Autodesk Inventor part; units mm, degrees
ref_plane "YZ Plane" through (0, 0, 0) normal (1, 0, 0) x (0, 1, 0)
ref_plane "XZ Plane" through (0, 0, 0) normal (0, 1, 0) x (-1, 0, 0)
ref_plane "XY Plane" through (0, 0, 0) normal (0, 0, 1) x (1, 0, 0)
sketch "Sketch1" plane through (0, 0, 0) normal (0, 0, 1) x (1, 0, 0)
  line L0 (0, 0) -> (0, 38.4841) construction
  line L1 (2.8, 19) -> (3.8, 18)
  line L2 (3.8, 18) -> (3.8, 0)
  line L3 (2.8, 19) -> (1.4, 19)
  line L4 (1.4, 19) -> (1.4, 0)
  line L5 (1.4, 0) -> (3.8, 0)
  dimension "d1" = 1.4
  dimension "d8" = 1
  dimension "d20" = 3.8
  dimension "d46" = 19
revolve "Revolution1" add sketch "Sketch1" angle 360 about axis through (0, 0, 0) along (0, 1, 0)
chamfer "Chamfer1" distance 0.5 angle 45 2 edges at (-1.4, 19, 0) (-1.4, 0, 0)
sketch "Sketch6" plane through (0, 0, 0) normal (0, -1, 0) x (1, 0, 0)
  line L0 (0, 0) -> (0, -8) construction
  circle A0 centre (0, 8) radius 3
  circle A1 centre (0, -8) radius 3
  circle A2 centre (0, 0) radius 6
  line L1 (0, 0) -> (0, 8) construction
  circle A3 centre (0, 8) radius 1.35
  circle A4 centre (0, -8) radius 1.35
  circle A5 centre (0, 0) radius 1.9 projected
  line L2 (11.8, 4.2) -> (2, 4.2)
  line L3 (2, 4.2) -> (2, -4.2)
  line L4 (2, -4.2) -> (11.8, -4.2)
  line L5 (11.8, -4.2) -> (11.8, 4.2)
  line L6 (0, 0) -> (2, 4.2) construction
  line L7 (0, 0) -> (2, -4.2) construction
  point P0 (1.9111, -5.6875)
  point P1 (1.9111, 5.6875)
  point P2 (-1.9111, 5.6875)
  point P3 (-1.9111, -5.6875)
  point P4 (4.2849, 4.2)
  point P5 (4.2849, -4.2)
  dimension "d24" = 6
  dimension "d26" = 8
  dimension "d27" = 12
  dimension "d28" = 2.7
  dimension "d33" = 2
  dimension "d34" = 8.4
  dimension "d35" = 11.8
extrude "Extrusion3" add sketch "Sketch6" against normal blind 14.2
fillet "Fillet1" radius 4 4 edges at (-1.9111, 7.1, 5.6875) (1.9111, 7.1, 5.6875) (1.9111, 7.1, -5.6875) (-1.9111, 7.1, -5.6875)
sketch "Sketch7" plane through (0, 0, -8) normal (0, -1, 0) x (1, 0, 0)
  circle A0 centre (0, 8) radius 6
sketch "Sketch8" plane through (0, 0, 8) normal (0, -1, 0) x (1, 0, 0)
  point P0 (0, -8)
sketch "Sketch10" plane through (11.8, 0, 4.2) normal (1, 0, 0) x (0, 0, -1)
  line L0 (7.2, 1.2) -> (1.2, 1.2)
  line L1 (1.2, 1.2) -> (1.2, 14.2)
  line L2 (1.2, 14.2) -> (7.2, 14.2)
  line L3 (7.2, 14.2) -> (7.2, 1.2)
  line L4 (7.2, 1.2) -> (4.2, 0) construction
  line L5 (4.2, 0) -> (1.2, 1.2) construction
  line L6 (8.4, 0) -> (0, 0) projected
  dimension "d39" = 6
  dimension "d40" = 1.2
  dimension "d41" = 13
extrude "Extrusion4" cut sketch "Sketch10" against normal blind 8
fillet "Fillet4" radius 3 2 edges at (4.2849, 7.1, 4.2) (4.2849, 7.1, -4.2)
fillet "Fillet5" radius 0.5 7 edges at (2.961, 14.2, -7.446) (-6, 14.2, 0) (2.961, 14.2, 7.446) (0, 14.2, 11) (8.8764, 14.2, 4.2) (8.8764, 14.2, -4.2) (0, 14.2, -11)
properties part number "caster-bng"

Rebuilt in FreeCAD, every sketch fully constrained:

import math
import FreeCAD as App
import Part
import Sketcher


def edges_at(feature, points):
    """Names of the edges that pass closest to the given points."""
    edges = feature.Shape.Edges
    near = lambda p: min(range(len(edges)), key=lambda i: edges[i].distToShape(Part.Vertex(*p))[0])
    return sorted({f"Edge{near(p) + 1}" for p in points})

doc = App.newDocument("Part")
params = doc.addObject("Spreadsheet::Sheet", "Params")
for row, (alias, value) in enumerate([
    ("sketch1_height", "19 mm"),
    ("sketch1_width", "1.4 mm"),
    ("revolution_angle", "360 deg"),
    ("chamfer_size", "0.5 mm"),
    ("sketch2_radius", "3 mm"),
    ("sketch2_radius2", "6 mm"),
    ("sketch2_diameter", "2.7 mm"),
    ("sketch2_height", "8.4 mm"),
    ("sketch2_diameter2", "3.8 mm"),
    ("pad1_length", "14.2 mm"),
    ("fillet_radius", "4 mm"),
    ("sketch3_width", "13 mm"),
    ("sketch3_height", "6 mm"),
    ("pocket1_length", "8 mm"),
    ("fillet2_radius", "3 mm"),
    ("fillet3_radius", "0.5 mm"),
], start=1):
    params.set(f"A{row}", alias)
    params.set(f"B{row}", "=" + value)
    params.setAlias(f"B{row}", alias)

body = doc.addObject("PartDesign::Body", "Body")

sketch1 = body.newObject("Sketcher::SketchObject", "Sketch")
sketch1.AttachmentSupport = (doc.getObject("XY_Plane"), [""])
sketch1.MapMode = "FlatFace"
sketch1.addGeometry([
    Part.LineSegment(App.Vector(3.8, 18, 0), App.Vector(2.8, 19, 0)),
    Part.LineSegment(App.Vector(2.8, 19, 0), App.Vector(1.4, 19, 0)),
    Part.LineSegment(App.Vector(1.4, 19, 0), App.Vector(1.4, 0, 0)),
    Part.LineSegment(App.Vector(1.4, 0, 0), App.Vector(3.8, 0, 0)),
    Part.LineSegment(App.Vector(3.8, 0, 0), App.Vector(3.8, 18, 0)),
], False)
sketch1.addConstraint([
    Sketcher.Constraint("Coincident", 0, 2, 1, 1),
    Sketcher.Constraint("Coincident", 1, 2, 2, 1),
    Sketcher.Constraint("Coincident", 2, 2, 3, 1),
    Sketcher.Constraint("Coincident", 3, 2, 4, 1),
    Sketcher.Constraint("Coincident", 4, 2, 0, 1),
    Sketcher.Constraint("Horizontal", 1),
    Sketcher.Constraint("Vertical", 2),
    Sketcher.Constraint("Horizontal", 3),
    Sketcher.Constraint("Vertical", 4),
    Sketcher.Constraint("PointOnObject", 2, 2, -1),
    Sketcher.Constraint("DistanceY", 2, 2, 2, 1, 19.0),
    Sketcher.Constraint("DistanceX", 1, 2, 1, 1, 1.4),
    Sketcher.Constraint("DistanceX", 0, 2, 3, 2, 1.0),
    Sketcher.Constraint("DistanceY", 4, 2, 0, 2, 1.0),
    Sketcher.Constraint("DistanceX", -1, 1, 1, 2, 1.4),
])
sketch1.setExpression("Constraints[10]", "Params.sketch1_height")
sketch1.setExpression("Constraints[11]", "Params.sketch1_width")
revolution = body.newObject("PartDesign::Revolution", "Revolution")
revolution.Profile = sketch1
revolution.ReferenceAxis = (sketch1, ["V_Axis"])
revolution.setExpression("Angle", "Params.revolution_angle")
doc.recompute()

chamfer = body.newObject("PartDesign::Chamfer", "Chamfer")
chamfer.Base = (revolution, edges_at(revolution, [(-1.4, 19, 0), (-1.4, 0, 0)]))
chamfer.setExpression("Size", "Params.chamfer_size")

sketch2 = body.newObject("Sketcher::SketchObject", "Sketch001")
sketch2.AttachmentSupport = (doc.getObject("XZ_Plane"), [""])
sketch2.MapMode = "FlatFace"
sketch2.addGeometry([
    Part.ArcOfCircle(Part.Circle(App.Vector(0, 8, 0), App.Vector(0, 0, 1), 3), math.radians(-50.428781), math.radians(230.428781)),
    Part.ArcOfCircle(Part.Circle(App.Vector(0, 0, 0), App.Vector(0, 0, 1), 6), math.radians(108.57335), math.radians(251.42665)),
    Part.ArcOfCircle(Part.Circle(App.Vector(0, -8, 0), App.Vector(0, 0, 1), 3), math.radians(129.571219), math.radians(410.428781)),
    Part.ArcOfCircle(Part.Circle(App.Vector(0, 0, 0), App.Vector(0, 0, 1), 6), math.radians(-71.42665), math.radians(-44.427004)),
    Part.LineSegment(App.Vector(4.284857, -4.2, 0), App.Vector(11.8, -4.2, 0)),
    Part.LineSegment(App.Vector(11.8, -4.2, 0), App.Vector(11.8, 4.2, 0)),
    Part.LineSegment(App.Vector(11.8, 4.2, 0), App.Vector(4.284857, 4.2, 0)),
    Part.ArcOfCircle(Part.Circle(App.Vector(0, 0, 0), App.Vector(0, 0, 1), 6), math.radians(44.427004), math.radians(71.42665)),
    Part.Circle(App.Vector(0, 8, 0), App.Vector(0, 0, 1), 1.35),
    Part.Circle(App.Vector(0, 0, 0), App.Vector(0, 0, 1), 1.9),
    Part.Circle(App.Vector(0, -8, 0), App.Vector(0, 0, 1), 1.35),
], False)
sketch2.addConstraint([
    Sketcher.Constraint("Coincident", 0, 2, 1, 1),
    Sketcher.Constraint("Coincident", 1, 2, 2, 1),
    Sketcher.Constraint("Coincident", 2, 2, 3, 1),
    Sketcher.Constraint("Coincident", 3, 2, 4, 1),
    Sketcher.Constraint("Coincident", 4, 2, 5, 1),
    Sketcher.Constraint("Coincident", 5, 2, 6, 1),
    Sketcher.Constraint("Coincident", 6, 2, 7, 1),
    Sketcher.Constraint("Coincident", 7, 2, 0, 1),
    Sketcher.Constraint("Horizontal", 4),
    Sketcher.Constraint("Vertical", 5),
    Sketcher.Constraint("Horizontal", 6),
    Sketcher.Constraint("Coincident", 1, 3, -1, 1),
    Sketcher.Constraint("Coincident", 3, 3, -1, 1),
    Sketcher.Constraint("Coincident", 7, 3, -1, 1),
    Sketcher.Constraint("Coincident", 9, 3, -1, 1),
    Sketcher.Constraint("Coincident", 8, 3, 0, 3),
    Sketcher.Constraint("Coincident", 10, 3, 2, 3),
    Sketcher.Constraint("Equal", 0, 2),
    Sketcher.Constraint("Equal", 1, 3),
    Sketcher.Constraint("Equal", 3, 7),
    Sketcher.Constraint("Equal", 8, 10),
    Sketcher.Constraint("Symmetric", 0, 3, 2, 3, -1, 1),
    Sketcher.Constraint("PointOnObject", 0, 3, -2),
    Sketcher.Constraint("Vertical", 3, 2, 6, 2),
    Sketcher.Constraint("Radius", 0, 3.0),
    Sketcher.Constraint("Radius", 1, 6.0),
    Sketcher.Constraint("Diameter", 8, 2.7),
    Sketcher.Constraint("DistanceY", 5, 1, 5, 2, 8.4),
    Sketcher.Constraint("DistanceY", -1, 1, 0, 3, 8.0),
    Sketcher.Constraint("Diameter", 9, 3.8),
    Sketcher.Constraint("DistanceX", -1, 1, 4, 2, 11.8),
])
sketch2.setExpression("Constraints[24]", "Params.sketch2_radius")
sketch2.setExpression("Constraints[25]", "Params.sketch2_radius2")
sketch2.setExpression("Constraints[26]", "Params.sketch2_diameter")
sketch2.setExpression("Constraints[27]", "Params.sketch2_height")
sketch2.setExpression("Constraints[29]", "Params.sketch2_diameter2")
pad1 = body.newObject("PartDesign::Pad", "Pad")
pad1.Profile = sketch2
pad1.setExpression("Length", "Params.pad1_length")
pad1.Reversed = True
doc.recompute()

fillet = body.newObject("PartDesign::Fillet", "Fillet")
fillet.Base = (pad1, edges_at(pad1, [
    (-1.911, 7.1, 5.688),
    (1.911, 7.1, 5.688),
    (1.911, 7.1, -5.688),
    (-1.911, 7.1, -5.688),
]))
fillet.setExpression("Radius", "Params.fillet_radius")

sketch3 = body.newObject("Sketcher::SketchObject", "Sketch002")
sketch3.AttachmentSupport = (doc.getObject("YZ_Plane"), [""])
sketch3.MapMode = "FlatFace"
sketch3.AttachmentOffset = App.Placement(App.Vector(0, 0, 11.8), App.Rotation())
sketch3.addGeometry([
    Part.LineSegment(App.Vector(1.2, 3, 0), App.Vector(1.2, -3, 0)),
    Part.LineSegment(App.Vector(1.2, -3, 0), App.Vector(14.2, -3, 0)),
    Part.LineSegment(App.Vector(14.2, -3, 0), App.Vector(14.2, 3, 0)),
    Part.LineSegment(App.Vector(14.2, 3, 0), App.Vector(1.2, 3, 0)),
], False)
sketch3.addConstraint([
    Sketcher.Constraint("Coincident", 0, 2, 1, 1),
    Sketcher.Constraint("Coincident", 1, 2, 2, 1),
    Sketcher.Constraint("Coincident", 2, 2, 3, 1),
    Sketcher.Constraint("Coincident", 3, 2, 0, 1),
    Sketcher.Constraint("Vertical", 0),
    Sketcher.Constraint("Horizontal", 1),
    Sketcher.Constraint("Vertical", 2),
    Sketcher.Constraint("Horizontal", 3),
    Sketcher.Constraint("DistanceX", 1, 1, 1, 2, 13.0),
    Sketcher.Constraint("DistanceY", 0, 2, 0, 1, 6.0),
    Sketcher.Constraint("DistanceX", -1, 1, 0, 2, 1.2),
    Sketcher.Constraint("DistanceY", 0, 2, -1, 1, 3.0),
])
sketch3.setExpression("Constraints[8]", "Params.sketch3_width")
sketch3.setExpression("Constraints[9]", "Params.sketch3_height")
pocket1 = body.newObject("PartDesign::Pocket", "Pocket")
pocket1.Profile = sketch3
pocket1.setExpression("Length", "Params.pocket1_length")
doc.recompute()

fillet2 = body.newObject("PartDesign::Fillet", "Fillet001")
fillet2.Base = (pocket1, edges_at(pocket1, [(4.285, 7.1, 4.2), (4.285, 7.1, -4.2)]))
fillet2.setExpression("Radius", "Params.fillet2_radius")
doc.recompute()

fillet3 = body.newObject("PartDesign::Fillet", "Fillet002")
fillet3.Base = (fillet2, edges_at(fillet2, [
    (2.961, 14.2, -7.446),
    (-6, 14.2, 0),
    (2.961, 14.2, 7.446),
    (0, 14.2, 11),
    (8.876, 14.2, 4.2),
    (8.876, 14.2, -4.2),
    (0, 14.2, -11),
]))
fillet3.setExpression("Radius", "Params.fillet3_radius")

doc.recompute()
